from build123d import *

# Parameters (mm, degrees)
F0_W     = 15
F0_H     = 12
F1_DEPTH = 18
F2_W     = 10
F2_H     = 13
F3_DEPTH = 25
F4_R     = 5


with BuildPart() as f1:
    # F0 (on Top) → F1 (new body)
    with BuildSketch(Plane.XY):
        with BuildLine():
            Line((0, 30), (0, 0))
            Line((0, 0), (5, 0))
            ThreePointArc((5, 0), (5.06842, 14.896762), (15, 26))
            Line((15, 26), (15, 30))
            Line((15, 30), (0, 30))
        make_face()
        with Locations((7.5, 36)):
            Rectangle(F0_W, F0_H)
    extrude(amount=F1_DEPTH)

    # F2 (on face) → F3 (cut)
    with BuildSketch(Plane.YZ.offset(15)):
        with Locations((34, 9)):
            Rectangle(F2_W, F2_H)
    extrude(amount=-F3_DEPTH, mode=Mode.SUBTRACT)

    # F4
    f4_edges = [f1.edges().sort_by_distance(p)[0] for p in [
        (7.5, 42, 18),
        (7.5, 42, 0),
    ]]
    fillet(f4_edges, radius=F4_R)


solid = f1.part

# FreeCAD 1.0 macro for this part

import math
import FreeCAD as App
import Part
import Sketcher
from FreeCAD import Vector
Q = App.Units.Quantity


def edges_at(feature, points):
    """Names of the edges that pass closest to the given points."""
    edges = feature.Shape.Edges
    near = lambda p: min(range(len(edges)), key=lambda i: edges[i].distToShape(Part.Vertex(*p))[0])
    return sorted({f"Edge{near(p) + 1}" for p in points})


def add_polygon(sketch, points):
    """Adds a closed chain of lines whose ends are joined by coincident constraints."""
    first, n = sketch.GeometryCount, len(points)
    for a, b in zip(points, points[1:] + points[:1]):
        sketch.addGeometry(Part.LineSegment(App.Vector(*a, 0), App.Vector(*b, 0)), False)
    for i in range(n):
        sketch.addConstraint(Sketcher.Constraint("Coincident", first + i, 2, first + (i + 1) % n, 1))

doc = App.newDocument("Part")
params = doc.addObject("Spreadsheet::Sheet", "Params")
for row, (alias, value) in enumerate([
    ("sketch1_radius", "21 mm"),
    ("sketch1_width", "5 mm"),
    ("sketch1_width2", "15 mm"),
    ("sketch1_height", "16 mm"),
    ("sketch1_height2", "42 mm"),
    ("pad1_length", "18 mm"),
    ("sketch2_width", "10 mm"),
    ("sketch2_height", "13 mm"),
    ("pocket1_length", "25 mm"),
    ("fillet_radius", "5 mm"),
], start=1):
    params.set(f"A{row}", alias)
    params.set(f"B{row}", "=" + value)
    params.setAlias(f"B{row}", alias)

body = doc.addObject("PartDesign::Body", "Body")

sketch1 = body.newObject("Sketcher::SketchObject", "Sketch")
sketch1.AttachmentSupport = (doc.getObject("XY_Plane"), [""])
sketch1.MapMode = "FlatFace"
sketch1.addGeometry(Part.LineSegment(Vector(0, 0, 0), Vector(5, 0, 0)), False)
sketch1.addGeometry(Part.ArcOfCircle(Part.Circle(Vector(24.668677, 7.358201, 0), Vector(0, 0, 1), 21), math.radians(117.413775), math.radians(200.511203)), False)
sketch1.addGeometry(Part.LineSegment(Vector(15, 26, 0), Vector(15, 42, 0)), False)
sketch1.addGeometry(Part.LineSegment(Vector(15, 42, 0), Vector(0, 42, 0)), False)
sketch1.addGeometry(Part.LineSegment(Vector(0, 42, 0), Vector(0, 0, 0)), False)
sketch1.addConstraint(Sketcher.Constraint("Coincident", 0, 2, 1, 2))
sketch1.addConstraint(Sketcher.Constraint("Coincident", 1, 1, 2, 1))
sketch1.addConstraint(Sketcher.Constraint("Coincident", 2, 2, 3, 1))
sketch1.addConstraint(Sketcher.Constraint("Coincident", 3, 2, 4, 1))
sketch1.addConstraint(Sketcher.Constraint("Coincident", 4, 2, 0, 1))
sketch1.addConstraint(Sketcher.Constraint("Horizontal", 0))
sketch1.addConstraint(Sketcher.Constraint("Vertical", 2))
sketch1.addConstraint(Sketcher.Constraint("Horizontal", 3))
sketch1.addConstraint(Sketcher.Constraint("Vertical", 4))
sketch1.addConstraint(Sketcher.Constraint("Coincident", 4, 2, -1, 1))
sketch1.addConstraint(Sketcher.Constraint("Radius", 1, Q("21 mm")))
sketch1.addConstraint(Sketcher.Constraint("DistanceX", 0, 1, 0, 2, Q("5 mm")))
sketch1.addConstraint(Sketcher.Constraint("DistanceX", 3, 2, 3, 1, Q("15 mm")))
sketch1.addConstraint(Sketcher.Constraint("DistanceY", 2, 1, 2, 2, Q("16 mm")))
sketch1.addConstraint(Sketcher.Constraint("DistanceY", 4, 2, 4, 1, Q("42 mm")))
sketch1.setExpression("Constraints[10]", "Params.sketch1_radius")
sketch1.setExpression("Constraints[11]", "Params.sketch1_width")
sketch1.setExpression("Constraints[12]", "Params.sketch1_width2")
sketch1.setExpression("Constraints[13]", "Params.sketch1_height")
sketch1.setExpression("Constraints[14]", "Params.sketch1_height2")
pad1 = body.newObject("PartDesign::Pad", "Pad")
pad1.Profile = sketch1
pad1.setExpression("Length", "Params.pad1_length")

sketch2 = body.newObject("Sketcher::SketchObject", "Sketch001")
sketch2.AttachmentSupport = (doc.getObject("YZ_Plane"), [""])
sketch2.MapMode = "FlatFace"
sketch2.AttachmentOffset = App.Placement(Vector(0, 0, 15), App.Rotation())
add_polygon(sketch2, [(29, 15.5), (29, 2.5), (39, 2.5), (39, 15.5)])
sketch2.addConstraint(Sketcher.Constraint("Vertical", 0))
sketch2.addConstraint(Sketcher.Constraint("Horizontal", 1))
sketch2.addConstraint(Sketcher.Constraint("Vertical", 2))
sketch2.addConstraint(Sketcher.Constraint("Horizontal", 3))
sketch2.addConstraint(Sketcher.Constraint("DistanceX", 1, 1, 1, 2, Q("10 mm")))
sketch2.addConstraint(Sketcher.Constraint("DistanceY", 0, 2, 0, 1, Q("13 mm")))
sketch2.addConstraint(Sketcher.Constraint("DistanceX", -1, 1, 0, 2, Q("29 mm")))
sketch2.addConstraint(Sketcher.Constraint("DistanceY", -1, 1, 0, 2, Q("2.5 mm")))
sketch2.setExpression("Constraints[8]", "Params.sketch2_width")
sketch2.setExpression("Constraints[9]", "Params.sketch2_height")
pocket1 = body.newObject("PartDesign::Pocket", "Pocket")
pocket1.Profile = sketch2
pocket1.setExpression("Length", "Params.pocket1_length")
doc.recompute()

fillet = body.newObject("PartDesign::Fillet", "Fillet")
fillet.Base = (pocket1, edges_at(pocket1, [(7.5, 42, 18), (7.5, 42, 0)]))
fillet.setExpression("Radius", "Params.fillet_radius")

doc.recompute()
